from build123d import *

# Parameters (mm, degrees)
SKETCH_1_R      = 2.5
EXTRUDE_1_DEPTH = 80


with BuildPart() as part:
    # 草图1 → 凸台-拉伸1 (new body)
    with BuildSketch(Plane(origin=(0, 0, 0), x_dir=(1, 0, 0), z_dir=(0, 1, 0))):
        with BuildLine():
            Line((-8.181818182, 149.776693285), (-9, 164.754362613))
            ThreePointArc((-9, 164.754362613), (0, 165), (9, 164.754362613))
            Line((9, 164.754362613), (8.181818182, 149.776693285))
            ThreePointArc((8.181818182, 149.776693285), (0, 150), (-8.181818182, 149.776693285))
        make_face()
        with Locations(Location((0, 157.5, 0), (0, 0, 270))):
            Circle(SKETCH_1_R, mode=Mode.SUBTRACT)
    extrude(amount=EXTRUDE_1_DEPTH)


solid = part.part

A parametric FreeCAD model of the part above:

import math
import FreeCAD as App
import Part
import Sketcher
Q = App.Units.Quantity

doc = App.newDocument("Part")
body = doc.addObject("PartDesign::Body", "Body")

# Sketch on XZ plane
sketch1 = body.newObject("Sketcher::SketchObject", "Sketch")
sketch1.AttachmentSupport = (doc.getObject("XZ_Plane"), [""])
sketch1.MapMode = "FlatFace"
sketch1.addGeometry(Part.LineSegment(App.Vector(-9, -164.754363, 0), App.Vector(-8.181818, -149.776693, 0)), False)
sketch1.addGeometry(Part.ArcOfCircle(Part.Circle(App.Vector(0, 0, 0), App.Vector(0, 0, 1), 150), math.radians(-93.126776), math.radians(-86.873224)), False)
sketch1.addGeometry(Part.LineSegment(App.Vector(8.181818, -149.776693, 0), App.Vector(9, -164.754363, 0)), False)
sketch1.addGeometry(Part.ArcOfCircle(Part.Circle(App.Vector(0, 0, 0), App.Vector(0, 0, 1), 165), math.radians(-93.126776), math.radians(-86.873224)), False)
sketch1.addGeometry(Part.Circle(App.Vector(0, -157.5, 0), App.Vector(0, 0, 1), 2.5), False)
sketch1.addConstraint(Sketcher.Constraint("Coincident", 0, 2, 1, 1))
sketch1.addConstraint(Sketcher.Constraint("Coincident", 1, 2, 2, 1))
sketch1.addConstraint(Sketcher.Constraint("Coincident", 2, 2, 3, 2))
sketch1.addConstraint(Sketcher.Constraint("Coincident", 3, 1, 0, 1))
sketch1.addConstraint(Sketcher.Constraint("Coincident", 1, 3, -1, 1))
sketch1.addConstraint(Sketcher.Constraint("Coincident", 3, 3, -1, 1))
sketch1.addConstraint(Sketcher.Constraint("PointOnObject", 4, 3, -2))
sketch1.addConstraint(Sketcher.Constraint("Horizontal", 0, 2, 1, 2))
sketch1.addConstraint(Sketcher.Constraint("Horizontal", 2, 2, 3, 1))
sketch1.addConstraint(Sketcher.Constraint("Diameter", 4, Q("5 mm")))
sketch1.addConstraint(Sketcher.Constraint("Radius", 1, Q("150 mm")))
sketch1.addConstraint(Sketcher.Constraint("Radius", 3, Q("165 mm")))
sketch1.addConstraint(Sketcher.Constraint("DistanceX", -1, 1, 2, 2, Q("9 mm")))
sketch1.addConstraint(Sketcher.Constraint("DistanceY", 4, 3, -1, 1, Q("157.5 mm")))
sketch1.addConstraint(Sketcher.Constraint("DistanceX", 0, 2, -1, 1, Q("8.181818 mm")))
pad1 = body.newObject("PartDesign::Pad", "Pad")
pad1.Profile = sketch1
pad1.Length = 80
pad1.Reversed = True

doc.recompute()
